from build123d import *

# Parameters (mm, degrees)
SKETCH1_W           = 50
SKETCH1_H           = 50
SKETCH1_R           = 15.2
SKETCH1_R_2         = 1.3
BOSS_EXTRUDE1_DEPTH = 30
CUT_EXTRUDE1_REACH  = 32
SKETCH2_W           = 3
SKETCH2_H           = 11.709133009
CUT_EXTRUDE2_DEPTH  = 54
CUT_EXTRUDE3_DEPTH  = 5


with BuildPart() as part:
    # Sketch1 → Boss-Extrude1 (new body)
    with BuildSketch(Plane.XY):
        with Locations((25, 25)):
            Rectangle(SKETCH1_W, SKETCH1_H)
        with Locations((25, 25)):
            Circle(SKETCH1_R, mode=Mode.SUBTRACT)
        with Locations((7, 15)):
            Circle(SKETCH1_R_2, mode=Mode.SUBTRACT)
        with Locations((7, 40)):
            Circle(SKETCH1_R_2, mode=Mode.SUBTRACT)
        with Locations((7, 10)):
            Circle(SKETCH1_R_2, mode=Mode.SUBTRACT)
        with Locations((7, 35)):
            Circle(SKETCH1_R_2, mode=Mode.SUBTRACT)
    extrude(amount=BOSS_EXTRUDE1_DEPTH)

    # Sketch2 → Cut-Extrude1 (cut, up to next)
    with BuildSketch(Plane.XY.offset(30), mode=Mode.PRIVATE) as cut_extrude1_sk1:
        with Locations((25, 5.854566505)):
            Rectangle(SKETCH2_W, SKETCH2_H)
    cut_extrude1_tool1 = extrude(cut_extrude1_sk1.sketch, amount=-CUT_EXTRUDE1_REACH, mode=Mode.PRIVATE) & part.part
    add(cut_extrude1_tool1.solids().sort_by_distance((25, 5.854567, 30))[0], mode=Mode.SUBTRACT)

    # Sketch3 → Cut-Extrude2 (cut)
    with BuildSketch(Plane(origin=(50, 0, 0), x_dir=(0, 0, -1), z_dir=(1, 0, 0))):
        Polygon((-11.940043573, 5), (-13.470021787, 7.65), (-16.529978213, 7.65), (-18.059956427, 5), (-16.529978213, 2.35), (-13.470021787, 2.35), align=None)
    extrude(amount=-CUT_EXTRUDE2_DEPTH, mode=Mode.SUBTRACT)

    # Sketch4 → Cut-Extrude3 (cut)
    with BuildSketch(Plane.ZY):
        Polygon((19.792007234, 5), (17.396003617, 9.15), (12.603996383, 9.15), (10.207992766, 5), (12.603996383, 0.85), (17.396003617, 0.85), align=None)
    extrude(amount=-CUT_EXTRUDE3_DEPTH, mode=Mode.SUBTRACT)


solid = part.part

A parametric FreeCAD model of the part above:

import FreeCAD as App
import Part
import Sketcher
from FreeCAD import Vector
Q = App.Units.Quantity


def add_polygon(sketch, points):
    """Adds a closed chain of lines whose ends are joined by coincident constraints."""
    first, n = sketch.GeometryCount, len(points)
    for a, b in zip(points, points[1:] + points[:1]):
        sketch.addGeometry(Part.LineSegment(App.Vector(*a, 0), App.Vector(*b, 0)), False)
    for i in range(n):
        sketch.addConstraint(Sketcher.Constraint("Coincident", first + i, 2, first + (i + 1) % n, 1))

doc = App.newDocument("Part")
body = doc.addObject("PartDesign::Body", "Body")

# Sketch on XY plane
sketch1 = doc.addObject("Sketcher::SketchObject", "Sketch")
body.addObject(sketch1)
sketch1.AttachmentSupport = (doc.XY_Plane, [""])
sketch1.MapMode = "FlatFace"
add_polygon(sketch1, [(0, 50), (0, 0), (50, 0), (50, 50)])  # lines 0-3
sketch1.addGeometry(Part.Circle(Vector(7, 10, 0), Vector(0, 0, 1), 1.3), False)  # 4
sketch1.addGeometry(Part.Circle(Vector(7, 15, 0), Vector(0, 0, 1), 1.3), False)  # 5
sketch1.addGeometry(Part.Circle(Vector(7, 35, 0), Vector(0, 0, 1), 1.3), False)  # 6
sketch1.addGeometry(Part.Circle(Vector(7, 40, 0), Vector(0, 0, 1), 1.3), False)  # 7
sketch1.addGeometry(Part.Circle(Vector(25, 25, 0), Vector(0, 0, 1), 15.2), False)  # 8
sketch1.addConstraint([
    Sketcher.Constraint("Vertical", 0),
    Sketcher.Constraint("Horizontal", 1),
    Sketcher.Constraint("Vertical", 2),
    Sketcher.Constraint("Horizontal", 3),
    Sketcher.Constraint("Coincident", 0, 2, -1, 1),
    Sketcher.Constraint("Equal", 4, 5),
    Sketcher.Constraint("Equal", 5, 6),
    Sketcher.Constraint("Equal", 6, 7),
    Sketcher.Constraint("Vertical", 4, 3, 5, 3),
    Sketcher.Constraint("Vertical", 5, 3, 6, 3),
    Sketcher.Constraint("Vertical", 6, 3, 7, 3),
    Sketcher.Constraint("Equal", 3, 0),
    Sketcher.Constraint("Diameter", 4, Q("2.6 mm")),
    Sketcher.Constraint("Diameter", 8, Q("30.4 mm")),
    Sketcher.Constraint("DistanceX", 1, 1, 1, 2, Q("50 mm")),
    Sketcher.Constraint("DistanceX", -1, 1, 4, 3, Q("7 mm")),
    Sketcher.Constraint("DistanceY", -1, 1, 4, 3, Q("10 mm")),
    Sketcher.Constraint("DistanceY", -1, 1, 5, 3, Q("15 mm")),
    Sketcher.Constraint("DistanceY", -1, 1, 6, 3, Q("35 mm")),
    Sketcher.Constraint("DistanceY", -1, 1, 7, 3, Q("40 mm")),
    Sketcher.Constraint("DistanceX", -1, 1, 8, 3, Q("25 mm")),
    Sketcher.Constraint("DistanceY", -1, 1, 8, 3, Q("25 mm")),
])
pad1 = doc.addObject("PartDesign::Pad", "Pad")
body.addObject(pad1)
pad1.Profile = sketch1
pad1.Length = 30

# Sketch on XY plane
sketch2 = doc.addObject("Sketcher::SketchObject", "Sketch001")
body.addObject(sketch2)
sketch2.AttachmentSupport = (doc.XY_Plane, [""])
sketch2.MapMode = "FlatFace"
sketch2.AttachmentOffset = App.Placement(Vector(0, 0, 30), App.Rotation())
add_polygon(sketch2, [(23.5, 11.709133), (23.5, 0), (26.5, 0), (26.5, 11.709133)])  # lines 0-3
sketch2.addConstraint([
    Sketcher.Constraint("Vertical", 0),
    Sketcher.Constraint("Horizontal", 1),
    Sketcher.Constraint("Vertical", 2),
    Sketcher.Constraint("Horizontal", 3),
    Sketcher.Constraint("PointOnObject", 0, 2, -1),
    Sketcher.Constraint("DistanceX", 1, 1, 1, 2, Q("3 mm")),
    Sketcher.Constraint("DistanceX", -1, 1, 0, 2, Q("23.5 mm")),
    Sketcher.Constraint("DistanceY", 0, 2, 0, 1, Q("11.709133 mm")),
])
pocket1 = doc.addObject("PartDesign::Pocket", "Pocket")
body.addObject(pocket1)
pocket1.Profile = sketch2
pocket1.Type = "UpToFirst"

# Sketch on YZ plane
sketch3 = doc.addObject("Sketcher::SketchObject", "Sketch002")
body.addObject(sketch3)
sketch3.AttachmentSupport = (doc.YZ_Plane, [""])
sketch3.MapMode = "FlatFace"
sketch3.AttachmentOffset = App.Placement(Vector(0, 0, 50), App.Rotation())
add_polygon(sketch3, [(5, 11.940044), (7.65, 13.470022), (7.65, 16.529978), (5, 18.059956), (2.35, 16.529978), (2.35, 13.470022)])  # lines 0-5
sketch3.addConstraint([
    Sketcher.Constraint("Vertical", 1),
    Sketcher.Constraint("Vertical", 4),
    Sketcher.Constraint("Parallel", 0, 3),
    Sketcher.Constraint("Parallel", 2, 5),
    Sketcher.Constraint("Horizontal", 1, 2, 3, 2),
    Sketcher.Constraint("Horizontal", 0, 2, 4, 2),
    Sketcher.Constraint("Vertical", 2, 2, 5, 2),
    Sketcher.Constraint("Angle", 0, Q("30 deg")),
    Sketcher.Constraint("DistanceX", -1, 1, 2, 2, Q("5 mm")),
    Sketcher.Constraint("DistanceX", 3, 2, 1, 2, Q("5.3 mm")),
    Sketcher.Constraint("DistanceY", 1, 1, 1, 2, Q("3.059956 mm")),
    Sketcher.Constraint("DistanceY", -1, 1, 0, 2, Q("13.470022 mm")),
])
pocket2 = doc.addObject("PartDesign::Pocket", "Pocket001")
body.addObject(pocket2)
pocket2.Profile = sketch3
pocket2.Length = 54

# Sketch on YZ plane
sketch4 = doc.addObject("Sketcher::SketchObject", "Sketch003")
body.addObject(sketch4)
sketch4.AttachmentSupport = (doc.YZ_Plane, [""])
sketch4.MapMode = "FlatFace"
add_polygon(sketch4, [(5, 19.792007), (9.15, 17.396004), (9.15, 12.603996), (5, 10.207993), (0.85, 12.603996), (0.85, 17.396004)])  # lines 0-5
sketch4.addConstraint([
    Sketcher.Constraint("Vertical", 1),
    Sketcher.Constraint("Vertical", 4),
    Sketcher.Constraint("Parallel", 0, 3),
    Sketcher.Constraint("Parallel", 2, 5),
    Sketcher.Constraint("Horizontal", 1, 2, 3, 2),
    Sketcher.Constraint("Horizontal", 0, 2, 4, 2),
    Sketcher.Constraint("Vertical", 2, 2, 5, 2),
    Sketcher.Constraint("Angle", 0, Q("-30 deg")),
    Sketcher.Constraint("DistanceX", -1, 1, 2, 2, Q("5 mm")),
    Sketcher.Constraint("DistanceX", 3, 2, 1, 2, Q("8.3 mm")),
    Sketcher.Constraint("DistanceY", 1, 2, 1, 1, Q("4.792007 mm")),
    Sketcher.Constraint("DistanceY", -1, 1, 0, 2, Q("17.396004 mm")),
])
pocket3 = doc.addObject("PartDesign::Pocket", "Pocket002")
body.addObject(pocket3)
pocket3.Profile = sketch4
pocket3.Length = 5
pocket3.Reversed = True

doc.recompute()
